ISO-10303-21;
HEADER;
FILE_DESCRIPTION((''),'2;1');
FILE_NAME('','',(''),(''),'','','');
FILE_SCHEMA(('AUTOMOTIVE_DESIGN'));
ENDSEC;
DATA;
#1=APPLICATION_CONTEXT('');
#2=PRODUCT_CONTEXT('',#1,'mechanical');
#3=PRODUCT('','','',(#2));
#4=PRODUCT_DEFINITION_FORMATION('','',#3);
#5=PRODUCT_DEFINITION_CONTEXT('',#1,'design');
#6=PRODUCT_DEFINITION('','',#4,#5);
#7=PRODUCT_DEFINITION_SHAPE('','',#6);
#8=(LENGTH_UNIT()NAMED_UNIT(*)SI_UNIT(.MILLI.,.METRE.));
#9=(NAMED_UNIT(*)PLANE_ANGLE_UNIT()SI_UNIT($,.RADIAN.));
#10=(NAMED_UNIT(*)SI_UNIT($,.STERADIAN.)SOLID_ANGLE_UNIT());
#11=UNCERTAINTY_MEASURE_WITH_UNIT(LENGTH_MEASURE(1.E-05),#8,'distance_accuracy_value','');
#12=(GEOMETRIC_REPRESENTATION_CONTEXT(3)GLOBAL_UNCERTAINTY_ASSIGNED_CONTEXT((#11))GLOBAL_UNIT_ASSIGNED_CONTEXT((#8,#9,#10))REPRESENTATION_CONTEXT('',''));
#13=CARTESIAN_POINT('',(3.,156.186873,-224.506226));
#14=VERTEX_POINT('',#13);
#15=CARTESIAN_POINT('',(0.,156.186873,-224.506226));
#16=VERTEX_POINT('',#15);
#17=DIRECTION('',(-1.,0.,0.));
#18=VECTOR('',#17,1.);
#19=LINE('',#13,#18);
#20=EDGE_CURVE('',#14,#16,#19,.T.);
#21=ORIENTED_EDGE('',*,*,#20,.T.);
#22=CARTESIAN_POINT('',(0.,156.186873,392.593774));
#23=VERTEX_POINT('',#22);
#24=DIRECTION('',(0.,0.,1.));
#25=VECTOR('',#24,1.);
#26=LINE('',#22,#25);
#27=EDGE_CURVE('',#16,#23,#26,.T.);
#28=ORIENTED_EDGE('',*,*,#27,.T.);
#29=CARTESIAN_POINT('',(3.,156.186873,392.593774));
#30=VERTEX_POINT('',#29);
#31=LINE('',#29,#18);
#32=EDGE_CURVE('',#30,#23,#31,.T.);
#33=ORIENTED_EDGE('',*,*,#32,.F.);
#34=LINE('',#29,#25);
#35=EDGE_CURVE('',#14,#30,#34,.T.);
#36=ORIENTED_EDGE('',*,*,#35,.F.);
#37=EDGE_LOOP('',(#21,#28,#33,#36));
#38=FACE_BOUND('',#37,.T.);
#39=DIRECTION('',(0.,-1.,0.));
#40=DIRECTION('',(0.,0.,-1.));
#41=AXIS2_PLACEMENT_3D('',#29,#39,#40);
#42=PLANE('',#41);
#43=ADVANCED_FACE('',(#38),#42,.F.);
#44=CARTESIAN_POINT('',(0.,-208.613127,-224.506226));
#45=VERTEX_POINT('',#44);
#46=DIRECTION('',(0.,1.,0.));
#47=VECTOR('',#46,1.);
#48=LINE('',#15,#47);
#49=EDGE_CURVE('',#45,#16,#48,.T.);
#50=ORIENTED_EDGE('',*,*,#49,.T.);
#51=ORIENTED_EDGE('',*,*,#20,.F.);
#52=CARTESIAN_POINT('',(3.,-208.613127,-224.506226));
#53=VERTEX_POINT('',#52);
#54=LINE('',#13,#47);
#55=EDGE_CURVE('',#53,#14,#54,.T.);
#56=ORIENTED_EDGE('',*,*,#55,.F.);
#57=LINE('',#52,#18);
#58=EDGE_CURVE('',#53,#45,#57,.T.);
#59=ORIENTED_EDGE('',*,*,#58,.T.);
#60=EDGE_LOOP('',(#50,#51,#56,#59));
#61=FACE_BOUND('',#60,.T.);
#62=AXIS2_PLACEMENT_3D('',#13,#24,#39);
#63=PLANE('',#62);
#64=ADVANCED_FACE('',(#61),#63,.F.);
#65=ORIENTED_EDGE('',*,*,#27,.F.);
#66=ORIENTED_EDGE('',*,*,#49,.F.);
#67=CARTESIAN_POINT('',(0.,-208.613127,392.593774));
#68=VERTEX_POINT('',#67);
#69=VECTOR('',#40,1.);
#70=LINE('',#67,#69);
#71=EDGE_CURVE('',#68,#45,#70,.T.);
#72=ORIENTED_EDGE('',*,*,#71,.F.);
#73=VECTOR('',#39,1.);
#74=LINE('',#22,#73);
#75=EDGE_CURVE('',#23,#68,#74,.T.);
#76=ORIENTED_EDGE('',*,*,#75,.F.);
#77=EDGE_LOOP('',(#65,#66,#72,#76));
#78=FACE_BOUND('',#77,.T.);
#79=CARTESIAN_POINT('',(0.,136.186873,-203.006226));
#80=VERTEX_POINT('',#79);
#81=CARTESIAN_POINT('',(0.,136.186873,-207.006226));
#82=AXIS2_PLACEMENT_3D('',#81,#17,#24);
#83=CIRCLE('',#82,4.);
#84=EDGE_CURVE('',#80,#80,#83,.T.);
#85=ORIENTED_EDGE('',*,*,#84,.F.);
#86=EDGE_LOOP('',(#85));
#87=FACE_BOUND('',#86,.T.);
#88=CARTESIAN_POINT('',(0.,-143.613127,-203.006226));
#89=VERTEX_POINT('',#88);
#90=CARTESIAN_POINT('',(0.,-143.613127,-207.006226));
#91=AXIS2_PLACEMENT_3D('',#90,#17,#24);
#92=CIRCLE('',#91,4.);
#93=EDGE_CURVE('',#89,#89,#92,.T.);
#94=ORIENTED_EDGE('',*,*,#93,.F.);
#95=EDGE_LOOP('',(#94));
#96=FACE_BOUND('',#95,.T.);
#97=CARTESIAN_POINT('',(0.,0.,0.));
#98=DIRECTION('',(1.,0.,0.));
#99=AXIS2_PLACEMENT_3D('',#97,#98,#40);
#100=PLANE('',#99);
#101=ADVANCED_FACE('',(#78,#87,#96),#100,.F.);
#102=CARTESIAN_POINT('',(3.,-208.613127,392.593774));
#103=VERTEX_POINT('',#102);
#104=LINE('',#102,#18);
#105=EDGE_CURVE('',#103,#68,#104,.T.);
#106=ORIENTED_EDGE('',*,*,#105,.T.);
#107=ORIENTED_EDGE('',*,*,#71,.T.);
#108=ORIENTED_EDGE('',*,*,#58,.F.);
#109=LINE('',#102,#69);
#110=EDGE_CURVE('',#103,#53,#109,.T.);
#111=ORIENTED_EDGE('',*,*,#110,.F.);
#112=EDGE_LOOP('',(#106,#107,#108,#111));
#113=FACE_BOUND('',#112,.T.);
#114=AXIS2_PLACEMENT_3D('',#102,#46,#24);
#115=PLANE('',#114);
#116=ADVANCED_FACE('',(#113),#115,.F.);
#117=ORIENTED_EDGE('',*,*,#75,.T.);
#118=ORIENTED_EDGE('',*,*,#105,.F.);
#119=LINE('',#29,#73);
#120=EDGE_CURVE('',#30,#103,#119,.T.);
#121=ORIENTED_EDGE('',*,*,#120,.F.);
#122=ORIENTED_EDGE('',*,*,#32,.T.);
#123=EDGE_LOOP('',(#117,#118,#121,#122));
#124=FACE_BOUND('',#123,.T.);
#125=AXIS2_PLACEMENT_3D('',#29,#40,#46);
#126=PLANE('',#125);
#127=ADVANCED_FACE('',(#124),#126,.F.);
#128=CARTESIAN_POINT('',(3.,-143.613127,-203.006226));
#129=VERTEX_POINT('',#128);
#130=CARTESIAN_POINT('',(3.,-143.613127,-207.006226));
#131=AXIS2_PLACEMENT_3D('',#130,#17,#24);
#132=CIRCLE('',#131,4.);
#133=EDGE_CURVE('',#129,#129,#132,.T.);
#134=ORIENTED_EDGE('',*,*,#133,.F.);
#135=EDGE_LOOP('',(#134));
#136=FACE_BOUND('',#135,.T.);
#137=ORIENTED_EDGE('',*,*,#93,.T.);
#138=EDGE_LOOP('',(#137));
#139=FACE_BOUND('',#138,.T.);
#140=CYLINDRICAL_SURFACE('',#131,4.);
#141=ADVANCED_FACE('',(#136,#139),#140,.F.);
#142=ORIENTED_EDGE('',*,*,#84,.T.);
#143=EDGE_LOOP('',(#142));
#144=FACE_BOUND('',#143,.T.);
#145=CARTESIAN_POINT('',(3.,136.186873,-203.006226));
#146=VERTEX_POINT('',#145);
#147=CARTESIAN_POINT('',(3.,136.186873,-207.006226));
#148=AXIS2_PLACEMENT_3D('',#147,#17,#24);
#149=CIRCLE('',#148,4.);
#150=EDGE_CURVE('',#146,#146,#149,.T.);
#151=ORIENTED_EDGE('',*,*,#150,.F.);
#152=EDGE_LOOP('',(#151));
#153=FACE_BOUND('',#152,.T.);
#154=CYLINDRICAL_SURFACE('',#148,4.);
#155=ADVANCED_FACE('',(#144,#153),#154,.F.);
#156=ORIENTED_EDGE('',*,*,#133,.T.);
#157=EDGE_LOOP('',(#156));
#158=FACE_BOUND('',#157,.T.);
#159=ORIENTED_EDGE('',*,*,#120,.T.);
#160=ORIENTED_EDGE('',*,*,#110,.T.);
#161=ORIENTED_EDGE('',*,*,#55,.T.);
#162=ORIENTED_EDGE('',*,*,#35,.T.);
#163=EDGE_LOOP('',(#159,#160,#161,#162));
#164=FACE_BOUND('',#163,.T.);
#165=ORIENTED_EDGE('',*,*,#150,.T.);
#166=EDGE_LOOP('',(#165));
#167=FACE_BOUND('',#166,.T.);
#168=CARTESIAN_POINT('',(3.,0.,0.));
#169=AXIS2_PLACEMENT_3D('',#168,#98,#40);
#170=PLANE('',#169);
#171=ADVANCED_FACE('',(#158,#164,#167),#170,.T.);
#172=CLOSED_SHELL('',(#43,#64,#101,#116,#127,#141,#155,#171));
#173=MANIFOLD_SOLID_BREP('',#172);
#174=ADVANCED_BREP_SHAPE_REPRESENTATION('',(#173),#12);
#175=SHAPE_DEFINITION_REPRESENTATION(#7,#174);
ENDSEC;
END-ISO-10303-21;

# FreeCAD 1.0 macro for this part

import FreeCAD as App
import Part
import Sketcher

V = App.Vector
Q = App.Units.Quantity


def add_polygon(sketch, points):
    """Adds a closed chain of lines whose ends are joined by coincident constraints."""
    first, n = sketch.GeometryCount, len(points)
    for a, b in zip(points, points[1:] + points[:1]):
        sketch.addGeometry(Part.LineSegment(App.Vector(*a, 0), App.Vector(*b, 0)), False)
    for i in range(n):
        sketch.addConstraint(Sketcher.Constraint("Coincident", first + i, 2, first + (i + 1) % n, 1))

doc = App.newDocument("Part")
body = doc.addObject("PartDesign::Body", "Body")

sketch1 = doc.addObject("Sketcher::SketchObject", "Sketch")
body.addObject(sketch1)
sketch1.AttachmentSupport = (doc.YZ_Plane, [""])
sketch1.MapMode = "FlatFace"
add_polygon(sketch1, [(156, 393), (-209, 393), (-209, -225), (156, -225)])
sketch1.addConstraint(Sketcher.Constraint("Horizontal", 0))
sketch1.addConstraint(Sketcher.Constraint("Vertical", 1))
sketch1.addConstraint(Sketcher.Constraint("Horizontal", 2))
sketch1.addConstraint(Sketcher.Constraint("Vertical", 3))
sketch1.addConstraint(Sketcher.Constraint("DistanceX", 0, 2, 0, 1, Q("364.8 mm")))
sketch1.addConstraint(Sketcher.Constraint("DistanceY", 1, 2, 1, 1, Q("617.1 mm")))
sketch1.addConstraint(Sketcher.Constraint("DistanceX", 0, 2, -1, 1, Q("208.613127 mm")))
sketch1.addConstraint(Sketcher.Constraint("DistanceY", -1, 1, 0, 2, Q("392.593774 mm")))
pad1 = doc.addObject("PartDesign::Pad", "Pad")
body.addObject(pad1)
pad1.Profile = sketch1
pad1.Length = 3

sketch2 = doc.addObject("Sketcher::SketchObject", "Sketch001")
body.addObject(sketch2)
sketch2.AttachmentSupport = (doc.YZ_Plane, [""])
sketch2.MapMode = "FlatFace"
sketch2.addGeometry(Part.Circle(V(-143.6, -207, 0), V(0, 0, 1), 4), False)
sketch2.addGeometry(Part.Circle(V(136.2, -207, 0), V(0, 0, 1), 4), False)
sketch2.addConstraint(Sketcher.Constraint("Equal", 0, 1))
sketch2.addConstraint(Sketcher.Constraint("Horizontal", 0, 3, 1, 3))
sketch2.addConstraint(Sketcher.Constraint("Diameter", 0, Q("8 mm")))
sketch2.addConstraint(Sketcher.Constraint("DistanceX", 0, 3, 1, 3, Q("279.8 mm")))
sketch2.addConstraint(Sketcher.Constraint("DistanceX", 0, 3, -1, 1, Q("143.613127 mm")))
sketch2.addConstraint(Sketcher.Constraint("DistanceY", 0, 3, -1, 1, Q("207.006226 mm")))
pocket1 = doc.addObject("PartDesign::Pocket", "Pocket")
body.addObject(pocket1)
pocket1.Profile = sketch2
pocket1.Type = "ThroughAll"
pocket1.Reversed = True

doc.recompute()
